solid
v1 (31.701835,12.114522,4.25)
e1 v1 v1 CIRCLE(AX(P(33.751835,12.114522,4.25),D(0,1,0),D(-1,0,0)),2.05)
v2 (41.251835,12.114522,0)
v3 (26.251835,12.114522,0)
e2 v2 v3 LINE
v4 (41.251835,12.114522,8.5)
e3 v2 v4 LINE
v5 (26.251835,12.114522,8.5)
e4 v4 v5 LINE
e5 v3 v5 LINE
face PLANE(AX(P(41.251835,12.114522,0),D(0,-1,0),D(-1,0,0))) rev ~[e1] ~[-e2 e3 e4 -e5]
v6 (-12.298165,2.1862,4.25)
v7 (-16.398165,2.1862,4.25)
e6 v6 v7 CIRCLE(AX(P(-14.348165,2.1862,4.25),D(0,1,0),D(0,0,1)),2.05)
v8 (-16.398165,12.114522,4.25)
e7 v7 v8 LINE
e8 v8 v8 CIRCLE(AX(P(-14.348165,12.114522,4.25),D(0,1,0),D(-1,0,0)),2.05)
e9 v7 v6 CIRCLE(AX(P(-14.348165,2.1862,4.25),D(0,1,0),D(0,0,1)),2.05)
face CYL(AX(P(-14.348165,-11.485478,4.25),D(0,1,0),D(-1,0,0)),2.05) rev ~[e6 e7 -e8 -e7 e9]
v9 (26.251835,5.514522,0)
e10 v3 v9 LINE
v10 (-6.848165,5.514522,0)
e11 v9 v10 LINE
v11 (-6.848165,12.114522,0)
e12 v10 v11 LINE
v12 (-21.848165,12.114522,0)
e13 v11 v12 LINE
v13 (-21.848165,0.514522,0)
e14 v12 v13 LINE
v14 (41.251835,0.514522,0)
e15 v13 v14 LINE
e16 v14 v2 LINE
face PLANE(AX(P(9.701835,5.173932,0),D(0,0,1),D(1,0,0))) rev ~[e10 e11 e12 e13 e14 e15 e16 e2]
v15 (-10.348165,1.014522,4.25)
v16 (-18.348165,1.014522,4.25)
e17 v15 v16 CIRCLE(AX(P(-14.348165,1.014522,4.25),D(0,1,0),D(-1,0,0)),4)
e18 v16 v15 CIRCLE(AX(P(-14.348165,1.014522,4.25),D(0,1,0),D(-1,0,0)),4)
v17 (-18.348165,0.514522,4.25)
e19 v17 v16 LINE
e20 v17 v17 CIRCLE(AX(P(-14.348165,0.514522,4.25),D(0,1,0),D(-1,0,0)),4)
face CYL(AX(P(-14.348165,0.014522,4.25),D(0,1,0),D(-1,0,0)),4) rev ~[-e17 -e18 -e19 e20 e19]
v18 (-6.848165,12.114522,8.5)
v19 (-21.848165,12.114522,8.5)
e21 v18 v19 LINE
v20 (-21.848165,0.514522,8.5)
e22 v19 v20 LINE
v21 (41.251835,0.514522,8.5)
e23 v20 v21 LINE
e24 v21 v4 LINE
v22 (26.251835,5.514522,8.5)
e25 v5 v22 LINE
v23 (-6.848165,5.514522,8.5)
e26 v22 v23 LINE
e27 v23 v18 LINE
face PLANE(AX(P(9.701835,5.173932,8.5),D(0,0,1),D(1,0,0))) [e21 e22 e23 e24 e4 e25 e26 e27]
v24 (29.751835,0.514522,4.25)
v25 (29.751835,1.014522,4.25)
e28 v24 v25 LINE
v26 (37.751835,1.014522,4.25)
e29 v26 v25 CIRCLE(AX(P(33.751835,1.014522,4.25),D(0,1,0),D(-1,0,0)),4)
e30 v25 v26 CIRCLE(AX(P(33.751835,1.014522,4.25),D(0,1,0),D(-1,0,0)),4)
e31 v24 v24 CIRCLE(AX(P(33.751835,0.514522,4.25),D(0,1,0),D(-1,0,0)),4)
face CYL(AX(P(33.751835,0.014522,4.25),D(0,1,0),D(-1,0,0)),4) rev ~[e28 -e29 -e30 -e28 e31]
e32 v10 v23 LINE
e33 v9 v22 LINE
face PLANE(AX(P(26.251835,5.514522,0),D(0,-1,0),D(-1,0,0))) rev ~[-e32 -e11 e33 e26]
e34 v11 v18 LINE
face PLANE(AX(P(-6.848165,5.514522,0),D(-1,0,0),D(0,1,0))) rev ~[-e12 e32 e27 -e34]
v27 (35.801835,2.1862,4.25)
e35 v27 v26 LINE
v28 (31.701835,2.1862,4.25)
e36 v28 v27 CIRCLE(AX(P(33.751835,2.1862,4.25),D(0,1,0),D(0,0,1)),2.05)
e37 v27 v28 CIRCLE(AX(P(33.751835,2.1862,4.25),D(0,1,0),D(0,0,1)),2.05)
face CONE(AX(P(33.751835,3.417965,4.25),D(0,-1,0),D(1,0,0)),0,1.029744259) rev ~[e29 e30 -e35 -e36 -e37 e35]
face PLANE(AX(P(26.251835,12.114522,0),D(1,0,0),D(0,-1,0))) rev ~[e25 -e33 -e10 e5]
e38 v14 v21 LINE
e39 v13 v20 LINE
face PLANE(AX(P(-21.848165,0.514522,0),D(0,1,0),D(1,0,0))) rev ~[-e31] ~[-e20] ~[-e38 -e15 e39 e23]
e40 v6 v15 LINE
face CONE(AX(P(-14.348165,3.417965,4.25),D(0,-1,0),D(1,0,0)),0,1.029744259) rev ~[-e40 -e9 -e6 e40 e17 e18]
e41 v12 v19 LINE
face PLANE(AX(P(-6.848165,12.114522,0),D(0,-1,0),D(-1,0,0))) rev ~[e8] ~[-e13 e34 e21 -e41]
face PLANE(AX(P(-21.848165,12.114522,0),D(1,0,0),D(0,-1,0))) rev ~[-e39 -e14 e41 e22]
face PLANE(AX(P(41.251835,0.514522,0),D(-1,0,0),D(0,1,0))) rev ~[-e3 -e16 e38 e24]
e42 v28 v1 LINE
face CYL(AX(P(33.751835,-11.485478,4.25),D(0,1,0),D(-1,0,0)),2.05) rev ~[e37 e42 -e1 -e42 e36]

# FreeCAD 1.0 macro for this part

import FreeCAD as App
import Part
import Sketcher
from FreeCAD import Vector


def add_polygon(sketch, points):
    """Adds a closed chain of lines whose ends are joined by coincident constraints."""
    first, n = sketch.GeometryCount, len(points)
    for a, b in zip(points, points[1:] + points[:1]):
        sketch.addGeometry(Part.LineSegment(App.Vector(*a, 0), App.Vector(*b, 0)), False)
    for i in range(n):
        sketch.addConstraint(Sketcher.Constraint("Coincident", first + i, 2, first + (i + 1) % n, 1))

doc = App.newDocument("Part")
body = doc.addObject("PartDesign::Body", "Body")

sketch1 = body.newObject("Sketcher::SketchObject", "Sketch")
sketch1.AttachmentSupport = (doc.getObject("XY_Plane"), [""])
sketch1.MapMode = "FlatFace"
add_polygon(sketch1, [(-22, 1), (41, 1), (41, 12), (26, 12), (26, 6), (-7, 6), (-7, 12), (-22, 12)])
sketch1.addConstraint([
    Sketcher.Constraint("Horizontal", 0),
    Sketcher.Constraint("Vertical", 1),
    Sketcher.Constraint("Horizontal", 2),
    Sketcher.Constraint("Vertical", 3),
    Sketcher.Constraint("Horizontal", 4),
    Sketcher.Constraint("Vertical", 5),
    Sketcher.Constraint("Horizontal", 6),
    Sketcher.Constraint("Vertical", 7),
    Sketcher.Constraint("Horizontal", 2, 2, 5, 2),
    Sketcher.Constraint("Equal", 2, 6),
    Sketcher.Constraint("DistanceX", 2, 2, 2, 1, 15.0),
    Sketcher.Constraint("DistanceX", 0, 1, 0, 2, 63.1),
    Sketcher.Constraint("DistanceY", 1, 1, 1, 2, 11.6),
    Sketcher.Constraint("DistanceY", 3, 2, 3, 1, 6.6),
    Sketcher.Constraint("DistanceX", -1, 1, 0, 2, 41.251835),
    Sketcher.Constraint("DistanceY", -1, 1, 0, 2, 0.514522),
])
pad1 = body.newObject("PartDesign::Pad", "Pad")
pad1.Profile = sketch1
pad1.Length = 8.5

sketch2 = body.newObject("Sketcher::SketchObject", "Sketch001")
sketch2.AttachmentSupport = (doc.getObject("XZ_Plane"), [""])
sketch2.MapMode = "FlatFace"
sketch2.AttachmentOffset = App.Placement(Vector(0, 0, -0.514522), App.Rotation())
sketch2.addGeometry([
    Part.Circle(Vector(-14.3, 4.2, 0), Vector(0, 0, 1), 2),
    Part.Circle(Vector(33.8, 4.2, 0), Vector(0, 0, 1), 2),
], False)
sketch2.addConstraint([
    Sketcher.Constraint("Equal", 0, 1),
    Sketcher.Constraint("Horizontal", 0, 3, 1, 3),
    Sketcher.Constraint("Diameter", 0, 4.1),
    Sketcher.Constraint("DistanceX", 0, 3, 1, 3, 48.1),
    Sketcher.Constraint("DistanceY", -1, 1, 0, 3, 4.25),
    Sketcher.Constraint("DistanceX", 0, 3, -1, 1, 14.348165),
])
doc.recompute()
hole = body.newObject("PartDesign::Hole", "Hole")
hole.Profile = sketch2
hole.ThreadType = "None"
hole.Diameter = 4.1
hole.DepthType = "Dimension"
hole.Depth = 12
hole.DrillPoint = "Angled"
hole.DrillPointAngle = 118

sketch3 = body.newObject("Sketcher::SketchObject", "Sketch002")
sketch3.AttachmentSupport = (doc.getObject("XZ_Plane"), [""])
sketch3.MapMode = "FlatFace"
sketch3.AttachmentOffset = App.Placement(Vector(0, 0, -0.514522), App.Rotation())
sketch3.addGeometry([
    Part.Circle(Vector(-14.3, 4.2, 0), Vector(0, 0, 1), 4),
    Part.Circle(Vector(33.8, 4.2, 0), Vector(0, 0, 1), 4),
], False)
sketch3.addConstraint([
    Sketcher.Constraint("Equal", 0, 1),
    Sketcher.Constraint("Horizontal", 0, 3, 1, 3),
    Sketcher.Constraint("Diameter", 0, 8.0),
    Sketcher.Constraint("DistanceX", 0, 3, 1, 3, 48.1),
    Sketcher.Constraint("DistanceY", -1, 1, 0, 3, 4.25),
    Sketcher.Constraint("DistanceX", 0, 3, -1, 1, 14.348165),
])
doc.recompute()
hole2 = body.newObject("PartDesign::Hole", "Hole001")
hole2.Profile = sketch3
hole2.ThreadType = "None"
hole2.Diameter = 8
hole2.DepthType = "Dimension"
hole2.Depth = 0.5
hole2.DrillPoint = "Angled"
hole2.DrillPointAngle = 118

doc.recompute()
